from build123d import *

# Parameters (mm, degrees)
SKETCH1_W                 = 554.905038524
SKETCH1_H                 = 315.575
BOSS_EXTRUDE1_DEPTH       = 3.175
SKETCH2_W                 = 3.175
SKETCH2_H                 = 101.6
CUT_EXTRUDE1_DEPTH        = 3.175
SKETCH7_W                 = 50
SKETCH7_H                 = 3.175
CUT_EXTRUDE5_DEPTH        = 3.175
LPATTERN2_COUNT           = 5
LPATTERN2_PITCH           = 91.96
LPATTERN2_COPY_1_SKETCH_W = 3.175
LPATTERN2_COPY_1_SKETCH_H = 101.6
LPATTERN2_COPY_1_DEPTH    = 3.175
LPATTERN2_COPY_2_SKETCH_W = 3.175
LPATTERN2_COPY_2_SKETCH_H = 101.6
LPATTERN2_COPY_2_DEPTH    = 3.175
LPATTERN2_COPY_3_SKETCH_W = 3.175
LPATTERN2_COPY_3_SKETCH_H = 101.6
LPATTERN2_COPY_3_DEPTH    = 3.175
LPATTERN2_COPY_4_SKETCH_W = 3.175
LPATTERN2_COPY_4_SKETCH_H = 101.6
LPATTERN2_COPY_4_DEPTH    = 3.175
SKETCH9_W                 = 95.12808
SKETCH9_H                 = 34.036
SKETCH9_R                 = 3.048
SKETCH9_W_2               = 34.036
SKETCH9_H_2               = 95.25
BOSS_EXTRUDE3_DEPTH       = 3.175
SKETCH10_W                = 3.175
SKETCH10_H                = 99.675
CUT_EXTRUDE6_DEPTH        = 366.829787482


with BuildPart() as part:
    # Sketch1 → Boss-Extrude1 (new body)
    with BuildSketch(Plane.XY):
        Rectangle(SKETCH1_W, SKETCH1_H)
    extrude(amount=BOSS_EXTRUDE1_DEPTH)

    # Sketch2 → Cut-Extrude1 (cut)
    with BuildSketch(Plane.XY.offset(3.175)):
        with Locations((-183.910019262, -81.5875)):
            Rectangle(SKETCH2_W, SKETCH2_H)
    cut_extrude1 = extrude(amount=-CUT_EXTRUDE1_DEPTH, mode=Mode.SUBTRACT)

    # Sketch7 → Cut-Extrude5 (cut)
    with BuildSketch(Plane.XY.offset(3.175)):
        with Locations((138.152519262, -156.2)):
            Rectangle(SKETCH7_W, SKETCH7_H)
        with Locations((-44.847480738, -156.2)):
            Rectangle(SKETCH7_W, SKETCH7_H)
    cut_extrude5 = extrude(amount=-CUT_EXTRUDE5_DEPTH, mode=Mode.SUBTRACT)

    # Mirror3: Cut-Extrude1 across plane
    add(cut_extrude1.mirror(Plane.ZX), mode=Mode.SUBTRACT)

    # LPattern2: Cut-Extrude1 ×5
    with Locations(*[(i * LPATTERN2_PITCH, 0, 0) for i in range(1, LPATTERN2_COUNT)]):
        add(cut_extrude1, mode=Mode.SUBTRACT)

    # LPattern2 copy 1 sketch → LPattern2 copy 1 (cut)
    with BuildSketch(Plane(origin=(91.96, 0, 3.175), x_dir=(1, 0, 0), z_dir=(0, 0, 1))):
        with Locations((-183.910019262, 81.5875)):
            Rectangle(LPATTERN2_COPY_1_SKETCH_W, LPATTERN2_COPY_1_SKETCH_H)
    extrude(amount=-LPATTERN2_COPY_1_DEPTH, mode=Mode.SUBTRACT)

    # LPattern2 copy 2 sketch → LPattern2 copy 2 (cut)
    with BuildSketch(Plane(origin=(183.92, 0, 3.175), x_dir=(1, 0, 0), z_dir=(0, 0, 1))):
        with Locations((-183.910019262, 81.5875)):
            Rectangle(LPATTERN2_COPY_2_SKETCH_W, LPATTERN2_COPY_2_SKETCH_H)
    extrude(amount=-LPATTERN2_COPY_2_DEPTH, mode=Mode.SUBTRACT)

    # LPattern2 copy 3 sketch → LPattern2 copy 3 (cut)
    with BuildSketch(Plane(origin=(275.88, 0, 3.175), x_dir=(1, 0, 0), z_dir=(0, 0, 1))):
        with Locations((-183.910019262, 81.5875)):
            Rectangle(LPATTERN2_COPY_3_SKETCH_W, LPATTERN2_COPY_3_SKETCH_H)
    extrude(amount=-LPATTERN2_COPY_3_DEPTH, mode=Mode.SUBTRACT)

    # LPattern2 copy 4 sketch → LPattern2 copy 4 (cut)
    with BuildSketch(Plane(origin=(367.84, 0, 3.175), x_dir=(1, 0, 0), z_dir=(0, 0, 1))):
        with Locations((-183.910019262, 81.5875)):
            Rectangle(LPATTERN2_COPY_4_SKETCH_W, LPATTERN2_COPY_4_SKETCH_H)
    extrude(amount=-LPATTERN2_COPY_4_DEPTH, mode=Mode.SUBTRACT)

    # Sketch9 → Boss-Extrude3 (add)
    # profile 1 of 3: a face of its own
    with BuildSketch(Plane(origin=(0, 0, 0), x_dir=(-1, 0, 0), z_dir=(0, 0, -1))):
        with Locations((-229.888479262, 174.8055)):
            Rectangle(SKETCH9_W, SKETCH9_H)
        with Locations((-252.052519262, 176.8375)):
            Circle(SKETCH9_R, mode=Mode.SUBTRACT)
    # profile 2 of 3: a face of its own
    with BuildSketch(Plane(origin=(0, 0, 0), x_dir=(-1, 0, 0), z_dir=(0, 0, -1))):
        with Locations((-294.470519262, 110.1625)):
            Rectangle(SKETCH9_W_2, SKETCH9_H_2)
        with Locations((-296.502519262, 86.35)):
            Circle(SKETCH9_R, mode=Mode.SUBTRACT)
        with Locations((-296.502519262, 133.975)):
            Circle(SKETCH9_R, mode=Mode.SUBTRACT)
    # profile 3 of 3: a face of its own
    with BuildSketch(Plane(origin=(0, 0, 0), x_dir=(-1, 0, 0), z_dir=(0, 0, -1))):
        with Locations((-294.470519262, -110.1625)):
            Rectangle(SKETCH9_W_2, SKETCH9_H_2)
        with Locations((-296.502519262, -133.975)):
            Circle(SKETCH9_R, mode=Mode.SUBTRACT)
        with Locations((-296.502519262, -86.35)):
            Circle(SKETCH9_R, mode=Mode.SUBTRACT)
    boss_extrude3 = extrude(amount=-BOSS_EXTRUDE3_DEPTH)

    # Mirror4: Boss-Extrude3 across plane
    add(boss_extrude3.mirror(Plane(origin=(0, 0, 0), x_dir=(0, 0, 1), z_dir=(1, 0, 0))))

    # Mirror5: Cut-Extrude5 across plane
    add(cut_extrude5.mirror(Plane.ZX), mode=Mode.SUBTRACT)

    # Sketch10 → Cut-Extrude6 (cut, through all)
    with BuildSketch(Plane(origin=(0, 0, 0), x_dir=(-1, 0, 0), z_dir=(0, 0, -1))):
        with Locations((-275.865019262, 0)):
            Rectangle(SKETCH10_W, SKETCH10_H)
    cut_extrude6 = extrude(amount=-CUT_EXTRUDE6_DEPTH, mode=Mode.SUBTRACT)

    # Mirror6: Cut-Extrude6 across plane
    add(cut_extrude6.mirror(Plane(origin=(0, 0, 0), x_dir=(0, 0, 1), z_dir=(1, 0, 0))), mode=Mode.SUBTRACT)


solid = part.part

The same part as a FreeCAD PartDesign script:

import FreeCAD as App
import Part
import Sketcher
from FreeCAD import Vector
Q = App.Units.Quantity

doc = App.newDocument("Part")
body = doc.addObject("PartDesign::Body", "Body")

# Sketch on XY plane
sketch1 = body.newObject("Sketcher::SketchObject", "Sketch")
sketch1.AttachmentSupport = (doc.getObject("XY_Plane"), [""])
sketch1.MapMode = "FlatFace"
sketch1.addGeometry([
    Part.LineSegment(Vector(-277, 158, 0), Vector(-277, -158, 0)),
    Part.LineSegment(Vector(-277, -158, 0), Vector(277, -158, 0)),
    Part.LineSegment(Vector(277, -158, 0), Vector(277, 158, 0)),
    Part.LineSegment(Vector(277, 158, 0), Vector(-277, 158, 0)),
], False)
sketch1.addConstraint([
    Sketcher.Constraint("Coincident", 0, 2, 1, 1),
    Sketcher.Constraint("Coincident", 1, 2, 2, 1),
    Sketcher.Constraint("Coincident", 2, 2, 3, 1),
    Sketcher.Constraint("Coincident", 3, 2, 0, 1),
    Sketcher.Constraint("Vertical", 0),
    Sketcher.Constraint("Horizontal", 1),
    Sketcher.Constraint("Vertical", 2),
    Sketcher.Constraint("Horizontal", 3),
    Sketcher.Constraint("Symmetric", 0, 2, 2, 2, -1, 1),
    Sketcher.Constraint("DistanceY", 0, 2, 0, 1, Q("315.575 mm")),
    Sketcher.Constraint("DistanceX", 1, 1, 1, 2, Q("554.905039 mm")),
])
pad1 = body.newObject("PartDesign::Pad", "Pad")
pad1.Profile = sketch1
pad1.Length = Q("0.125 in")

# Sketch on XY plane
sketch2 = body.newObject("Sketcher::SketchObject", "Sketch001")
sketch2.AttachmentSupport = (doc.getObject("XY_Plane"), [""])
sketch2.MapMode = "FlatFace"
sketch2.AttachmentOffset = App.Placement(Vector(0, 0, 0.125 * 25.4), App.Rotation())
sketch2.addGeometry([
    Part.LineSegment(Vector(-185.5, -30.8, 0), Vector(-185.5, -132.4, 0)),
    Part.LineSegment(Vector(-185.5, -132.4, 0), Vector(-182.3, -132.4, 0)),
    Part.LineSegment(Vector(-182.3, -132.4, 0), Vector(-182.3, -30.8, 0)),
    Part.LineSegment(Vector(-182.3, -30.8, 0), Vector(-185.5, -30.8, 0)),
], False)
sketch2.addConstraint([
    Sketcher.Constraint("Coincident", 0, 2, 1, 1),
    Sketcher.Constraint("Coincident", 1, 2, 2, 1),
    Sketcher.Constraint("Coincident", 2, 2, 3, 1),
    Sketcher.Constraint("Coincident", 3, 2, 0, 1),
    Sketcher.Constraint("Vertical", 0),
    Sketcher.Constraint("Horizontal", 1),
    Sketcher.Constraint("Vertical", 2),
    Sketcher.Constraint("Horizontal", 3),
    Sketcher.Constraint("DistanceY", 0, 2, 0, 1, Q("4 in")),
    Sketcher.Constraint("DistanceX", 1, 1, 1, 2, Q("0.125 in")),
    Sketcher.Constraint("DistanceY", 0, 2, -1, 1, Q("132.3875 mm")),
    Sketcher.Constraint("DistanceX", 0, 2, -1, 1, Q("185.497519 mm")),
])
pocket1 = body.newObject("PartDesign::Pocket", "Pocket")
pocket1.Profile = sketch2
pocket1.Length = Q("0.125 in")

# Sketch on XY plane
sketch3 = body.newObject("Sketcher::SketchObject", "Sketch002")
sketch3.AttachmentSupport = (doc.getObject("XY_Plane"), [""])
sketch3.MapMode = "FlatFace"
sketch3.AttachmentOffset = App.Placement(Vector(0, 0, 0.125 * 25.4), App.Rotation())
sketch3.addGeometry([
    Part.LineSegment(Vector(113.2, -154.6, 0), Vector(113.2, -157.8, 0)),  # 0
    Part.LineSegment(Vector(113.2, -157.8, 0), Vector(163.2, -157.8, 0)),  # 1
    Part.LineSegment(Vector(163.2, -157.8, 0), Vector(163.2, -154.6, 0)),  # 2
    Part.LineSegment(Vector(163.2, -154.6, 0), Vector(113.2, -154.6, 0)),  # 3
    Part.LineSegment(Vector(-69.8, -154.6, 0), Vector(-69.8, -157.8, 0)),  # 4
    Part.LineSegment(Vector(-69.8, -157.8, 0), Vector(-19.8, -157.8, 0)),  # 5
    Part.LineSegment(Vector(-19.8, -157.8, 0), Vector(-19.8, -154.6, 0)),  # 6
    Part.LineSegment(Vector(-19.8, -154.6, 0), Vector(-69.8, -154.6, 0)),  # 7
], False)
sketch3.addConstraint([
    Sketcher.Constraint("Coincident", 0, 2, 1, 1),
    Sketcher.Constraint("Coincident", 1, 2, 2, 1),
    Sketcher.Constraint("Coincident", 2, 2, 3, 1),
    Sketcher.Constraint("Coincident", 3, 2, 0, 1),
    Sketcher.Constraint("Coincident", 4, 2, 5, 1),
    Sketcher.Constraint("Coincident", 5, 2, 6, 1),
    Sketcher.Constraint("Coincident", 6, 2, 7, 1),
    Sketcher.Constraint("Coincident", 7, 2, 4, 1),
    Sketcher.Constraint("Vertical", 0),
    Sketcher.Constraint("Horizontal", 1),
    Sketcher.Constraint("Vertical", 2),
    Sketcher.Constraint("Horizontal", 3),
    Sketcher.Constraint("Vertical", 4),
    Sketcher.Constraint("Horizontal", 5),
    Sketcher.Constraint("Vertical", 6),
    Sketcher.Constraint("Horizontal", 7),
    Sketcher.Constraint("Horizontal", 1, 2, 4, 2),
    Sketcher.Constraint("Horizontal", 3, 2, 6, 2),
    Sketcher.Constraint("Equal", 3, 5),
    Sketcher.Constraint("DistanceY", 0, 2, 0, 1, Q("0.125 in")),
    Sketcher.Constraint("DistanceX", 1, 1, 1, 2, Q("50 mm")),
    Sketcher.Constraint("DistanceY", 0, 2, -1, 1, Q("157.7875 mm")),
    Sketcher.Constraint("DistanceX", 4, 2, 0, 2, Q("183 mm")),
    Sketcher.Constraint("DistanceX", -1, 1, 0, 2, Q("113.152519 mm")),
])
pocket2 = body.newObject("PartDesign::Pocket", "Pocket001")
pocket2.Profile = sketch3
pocket2.Length = Q("0.125 in")
doc.recompute()

mirrored = body.newObject("PartDesign::Mirrored", "Mirrored")
mirrored.Originals = [pocket1]
mirrored.MirrorPlane = (doc.getObject("XZ_Plane"), [""])
body.Tip = mirrored
doc.recompute()

linearpattern = body.newObject("PartDesign::LinearPattern", "LinearPattern")
linearpattern.Originals = [pocket1]
linearpattern.Direction = (doc.getObject("X_Axis"), [""])
linearpattern.Mode = "offset"
linearpattern.Offset = 91.96
linearpattern.Occurrences = 5
body.Tip = linearpattern

# Sketch on XY plane
sketch4 = body.newObject("Sketcher::SketchObject", "Sketch003")
sketch4.AttachmentSupport = (doc.getObject("XY_Plane"), [""])
sketch4.MapMode = "FlatFace"
sketch4.AttachmentOffset = App.Placement(Vector(0, 0, 0.125 * 25.4), App.Rotation())
sketch4.addGeometry([
    Part.LineSegment(Vector(-93.5, 132.4, 0), Vector(-93.5, 30.8, 0)),
    Part.LineSegment(Vector(-93.5, 30.8, 0), Vector(-90.4, 30.8, 0)),
    Part.LineSegment(Vector(-90.4, 30.8, 0), Vector(-90.4, 132.4, 0)),
    Part.LineSegment(Vector(-90.4, 132.4, 0), Vector(-93.5, 132.4, 0)),
], False)
sketch4.addConstraint([
    Sketcher.Constraint("Coincident", 0, 2, 1, 1),
    Sketcher.Constraint("Coincident", 1, 2, 2, 1),
    Sketcher.Constraint("Coincident", 2, 2, 3, 1),
    Sketcher.Constraint("Coincident", 3, 2, 0, 1),
    Sketcher.Constraint("Vertical", 0),
    Sketcher.Constraint("Horizontal", 1),
    Sketcher.Constraint("Vertical", 2),
    Sketcher.Constraint("Horizontal", 3),
    Sketcher.Constraint("DistanceY", 0, 2, 0, 1, Q("4 in")),
    Sketcher.Constraint("DistanceX", 1, 1, 1, 2, Q("0.125 in")),
    Sketcher.Constraint("DistanceY", -1, 1, 0, 2, Q("30.7875 mm")),
    Sketcher.Constraint("DistanceX", 0, 2, -1, 1, Q("93.537519 mm")),
])
pocket3 = body.newObject("PartDesign::Pocket", "Pocket002")
pocket3.Profile = sketch4
pocket3.Length = Q("0.125 in")

# Sketch on XY plane
sketch5 = body.newObject("Sketcher::SketchObject", "Sketch004")
sketch5.AttachmentSupport = (doc.getObject("XY_Plane"), [""])
sketch5.MapMode = "FlatFace"
sketch5.AttachmentOffset = App.Placement(Vector(0, 0, 0.125 * 25.4), App.Rotation())
sketch5.addGeometry([
    Part.LineSegment(Vector(-1.6, 132.4, 0), Vector(-1.6, 30.8, 0)),
    Part.LineSegment(Vector(-1.6, 30.8, 0), Vector(1.6, 30.8, 0)),
    Part.LineSegment(Vector(1.6, 30.8, 0), Vector(1.6, 132.4, 0)),
    Part.LineSegment(Vector(1.6, 132.4, 0), Vector(-1.6, 132.4, 0)),
], False)
sketch5.addConstraint([
    Sketcher.Constraint("Coincident", 0, 2, 1, 1),
    Sketcher.Constraint("Coincident", 1, 2, 2, 1),
    Sketcher.Constraint("Coincident", 2, 2, 3, 1),
    Sketcher.Constraint("Coincident", 3, 2, 0, 1),
    Sketcher.Constraint("Vertical", 0),
    Sketcher.Constraint("Horizontal", 1),
    Sketcher.Constraint("Vertical", 2),
    Sketcher.Constraint("Horizontal", 3),
    Sketcher.Constraint("DistanceY", 0, 2, 0, 1, Q("4 in")),
    Sketcher.Constraint("DistanceX", 1, 1, 1, 2, Q("0.125 in")),
    Sketcher.Constraint("DistanceY", -1, 1, 0, 2, Q("30.7875 mm")),
    Sketcher.Constraint("DistanceX", 0, 2, -1, 1, Q("1.577519 mm")),
])
pocket4 = body.newObject("PartDesign::Pocket", "Pocket003")
pocket4.Profile = sketch5
pocket4.Length = Q("0.125 in")

# Sketch on XY plane
sketch6 = body.newObject("Sketcher::SketchObject", "Sketch005")
sketch6.AttachmentSupport = (doc.getObject("XY_Plane"), [""])
sketch6.MapMode = "FlatFace"
sketch6.AttachmentOffset = App.Placement(Vector(0, 0, 0.125 * 25.4), App.Rotation())
sketch6.addGeometry([
    Part.LineSegment(Vector(90.4, 132.4, 0), Vector(90.4, 30.8, 0)),
    Part.LineSegment(Vector(90.4, 30.8, 0), Vector(93.6, 30.8, 0)),
    Part.LineSegment(Vector(93.6, 30.8, 0), Vector(93.6, 132.4, 0)),
    Part.LineSegment(Vector(93.6, 132.4, 0), Vector(90.4, 132.4, 0)),
], False)
sketch6.addConstraint([
    Sketcher.Constraint("Coincident", 0, 2, 1, 1),
    Sketcher.Constraint("Coincident", 1, 2, 2, 1),
    Sketcher.Constraint("Coincident", 2, 2, 3, 1),
    Sketcher.Constraint("Coincident", 3, 2, 0, 1),
    Sketcher.Constraint("Vertical", 0),
    Sketcher.Constraint("Horizontal", 1),
    Sketcher.Constraint("Vertical", 2),
    Sketcher.Constraint("Horizontal", 3),
    Sketcher.Constraint("DistanceY", 0, 2, 0, 1, Q("4 in")),
    Sketcher.Constraint("DistanceX", 1, 1, 1, 2, Q("0.125 in")),
    Sketcher.Constraint("DistanceY", -1, 1, 0, 2, Q("30.7875 mm")),
    Sketcher.Constraint("DistanceX", -1, 1, 0, 2, Q("90.382481 mm")),
])
pocket5 = body.newObject("PartDesign::Pocket", "Pocket004")
pocket5.Profile = sketch6
pocket5.Length = Q("0.125 in")

# Sketch on XY plane
sketch7 = body.newObject("Sketcher::SketchObject", "Sketch006")
sketch7.AttachmentSupport = (doc.getObject("XY_Plane"), [""])
sketch7.MapMode = "FlatFace"
sketch7.AttachmentOffset = App.Placement(Vector(0, 0, 0.125 * 25.4), App.Rotation())
sketch7.addGeometry([
    Part.LineSegment(Vector(182.3, 132.4, 0), Vector(182.3, 30.8, 0)),
    Part.LineSegment(Vector(182.3, 30.8, 0), Vector(185.5, 30.8, 0)),
    Part.LineSegment(Vector(185.5, 30.8, 0), Vector(185.5, 132.4, 0)),
    Part.LineSegment(Vector(185.5, 132.4, 0), Vector(182.3, 132.4, 0)),
], False)
sketch7.addConstraint([
    Sketcher.Constraint("Coincident", 0, 2, 1, 1),
    Sketcher.Constraint("Coincident", 1, 2, 2, 1),
    Sketcher.Constraint("Coincident", 2, 2, 3, 1),
    Sketcher.Constraint("Coincident", 3, 2, 0, 1),
    Sketcher.Constraint("Vertical", 0),
    Sketcher.Constraint("Horizontal", 1),
    Sketcher.Constraint("Vertical", 2),
    Sketcher.Constraint("Horizontal", 3),
    Sketcher.Constraint("DistanceY", 0, 2, 0, 1, Q("4 in")),
    Sketcher.Constraint("DistanceX", 1, 1, 1, 2, Q("0.125 in")),
    Sketcher.Constraint("DistanceY", -1, 1, 0, 2, Q("30.7875 mm")),
    Sketcher.Constraint("DistanceX", -1, 1, 0, 2, Q("182.342481 mm")),
])
pocket6 = body.newObject("PartDesign::Pocket", "Pocket005")
pocket6.Profile = sketch7
pocket6.Length = Q("0.125 in")

# Sketch on XY plane
sketch8 = body.newObject("Sketcher::SketchObject", "Sketch007")
sketch8.AttachmentSupport = (doc.getObject("XY_Plane"), [""])
sketch8.MapMode = "FlatFace"
sketch8.addGeometry([
    Part.LineSegment(Vector(277.5, 191.8, 0), Vector(277.5, 157.8, 0)),  # 0
    Part.LineSegment(Vector(277.5, 157.8, 0), Vector(182.3, 157.8, 0)),  # 1
    Part.LineSegment(Vector(182.3, 157.8, 0), Vector(182.3, 191.8, 0)),  # 2
    Part.LineSegment(Vector(182.3, 191.8, 0), Vector(277.5, 191.8, 0)),  # 3
    Part.Circle(Vector(252.1, 176.8, 0), Vector(0, 0, 1), 3),  # 4
    Part.LineSegment(Vector(311.5, 157.8, 0), Vector(311.5, 62.5, 0)),  # 5
    Part.LineSegment(Vector(311.5, 62.5, 0), Vector(277.5, 62.5, 0)),  # 6
    Part.LineSegment(Vector(277.5, 62.5, 0), Vector(277.5, 157.8, 0)),  # 7
    Part.LineSegment(Vector(277.5, 157.8, 0), Vector(311.5, 157.8, 0)),  # 8
    Part.Circle(Vector(296.5, 86.3, 0), Vector(0, 0, 1), 3),  # 9
    Part.Circle(Vector(296.5, 134, 0), Vector(0, 0, 1), 3),  # 10
    Part.LineSegment(Vector(311.5, -62.5, 0), Vector(311.5, -157.8, 0)),  # 11
    Part.LineSegment(Vector(311.5, -157.8, 0), Vector(277.5, -157.8, 0)),  # 12
    Part.LineSegment(Vector(277.5, -157.8, 0), Vector(277.5, -62.5, 0)),  # 13
    Part.LineSegment(Vector(277.5, -62.5, 0), Vector(311.5, -62.5, 0)),  # 14
    Part.Circle(Vector(296.5, -134, 0), Vector(0, 0, 1), 3),  # 15
    Part.Circle(Vector(296.5, -86.3, 0), Vector(0, 0, 1), 3),  # 16
], False)
sketch8.addConstraint([
    Sketcher.Constraint("Coincident", 0, 2, 1, 1),
    Sketcher.Constraint("Coincident", 1, 2, 2, 1),
    Sketcher.Constraint("Coincident", 2, 2, 3, 1),
    Sketcher.Constraint("Coincident", 3, 2, 0, 1),
    Sketcher.Constraint("Coincident", 5, 2, 6, 1),
    Sketcher.Constraint("Coincident", 6, 2, 7, 1),
    Sketcher.Constraint("Coincident", 7, 2, 8, 1),
    Sketcher.Constraint("Coincident", 8, 2, 5, 1),
    Sketcher.Constraint("Coincident", 11, 2, 12, 1),
    Sketcher.Constraint("Coincident", 12, 2, 13, 1),
    Sketcher.Constraint("Coincident", 13, 2, 14, 1),
    Sketcher.Constraint("Coincident", 14, 2, 11, 1),
    Sketcher.Constraint("Vertical", 0),
    Sketcher.Constraint("Horizontal", 1),
    Sketcher.Constraint("Vertical", 2),
    Sketcher.Constraint("Horizontal", 3),
    Sketcher.Constraint("Vertical", 5),
    Sketcher.Constraint("Horizontal", 6),
    Sketcher.Constraint("Vertical", 7),
    Sketcher.Constraint("Horizontal", 8),
    Sketcher.Constraint("Vertical", 11),
    Sketcher.Constraint("Horizontal", 12),
    Sketcher.Constraint("Vertical", 13),
    Sketcher.Constraint("Horizontal", 14),
    Sketcher.Constraint("Coincident", 7, 2, 0, 2),
    Sketcher.Constraint("Equal", 4, 9),
    Sketcher.Constraint("Equal", 9, 10),
    Sketcher.Constraint("Equal", 10, 15),
    Sketcher.Constraint("Equal", 15, 16),
    Sketcher.Constraint("Symmetric", 10, 3, 15, 3, -1),
    Sketcher.Constraint("Symmetric", 9, 3, 16, 3, -1),
    Sketcher.Constraint("Symmetric", 8, 2, 11, 2, -1),
    Sketcher.Constraint("Symmetric", 6, 2, 13, 2, -1),
    Sketcher.Constraint("Vertical", 9, 3, 10, 3),
    Sketcher.Constraint("Equal", 14, 0),
    Sketcher.Constraint("Diameter", 4, Q("0.24 in")),
    Sketcher.Constraint("DistanceX", 4, 3, 0, 2, Q("1 in")),
    Sketcher.Constraint("DistanceX", 6, 2, 6, 1, Q("1.34 in")),
    Sketcher.Constraint("DistanceY", 5, 2, 5, 1, Q("3.75 in")),
    Sketcher.Constraint("DistanceY", 5, 2, 4, 3, Q("4.5 in")),
    Sketcher.Constraint("DistanceX", 4, 3, 9, 3, Q("1.75 in")),
    Sketcher.Constraint("DistanceX", 1, 2, 1, 1, Q("3.7452 in")),
    Sketcher.Constraint("DistanceY", 9, 3, 4, 3, Q("3.5625 in")),
    Sketcher.Constraint("DistanceY", 9, 3, 10, 3, Q("1.875 in")),
    Sketcher.Constraint("DistanceY", -1, 1, 4, 3, Q("176.8375 mm")),
    Sketcher.Constraint("DistanceX", -1, 1, 4, 3, Q("252.052519 mm")),
])
pad2 = body.newObject("PartDesign::Pad", "Pad001")
pad2.Profile = sketch8
pad2.Length = Q("0.125 in")
doc.recompute()

mirrored2 = body.newObject("PartDesign::Mirrored", "Mirrored001")
mirrored2.Originals = [pad2]
mirrored2.MirrorPlane = (doc.getObject("YZ_Plane"), [""])
body.Tip = mirrored2
doc.recompute()

mirrored3 = body.newObject("PartDesign::Mirrored", "Mirrored002")
mirrored3.Originals = [pocket2]
mirrored3.MirrorPlane = (doc.getObject("XZ_Plane"), [""])
body.Tip = mirrored3

# Sketch on XY plane
sketch9 = body.newObject("Sketcher::SketchObject", "Sketch008")
sketch9.AttachmentSupport = (doc.getObject("XY_Plane"), [""])
sketch9.MapMode = "FlatFace"
sketch9.addGeometry([
    Part.LineSegment(Vector(277.5, 49.8, 0), Vector(277.5, -49.8, 0)),
    Part.LineSegment(Vector(277.5, -49.8, 0), Vector(274.3, -49.8, 0)),
    Part.LineSegment(Vector(274.3, -49.8, 0), Vector(274.3, 49.8, 0)),
    Part.LineSegment(Vector(274.3, 49.8, 0), Vector(277.5, 49.8, 0)),
], False)
sketch9.addConstraint([
    Sketcher.Constraint("Coincident", 0, 2, 1, 1),
    Sketcher.Constraint("Coincident", 1, 2, 2, 1),
    Sketcher.Constraint("Coincident", 2, 2, 3, 1),
    Sketcher.Constraint("Coincident", 3, 2, 0, 1),
    Sketcher.Constraint("Vertical", 0),
    Sketcher.Constraint("Horizontal", 1),
    Sketcher.Constraint("Vertical", 2),
    Sketcher.Constraint("Horizontal", 3),
    Sketcher.Constraint("DistanceX", 1, 2, 1, 1, Q("0.125 in")),
    Sketcher.Constraint("DistanceY", 0, 2, 0, 1, Q("99.675 mm")),
    Sketcher.Constraint("DistanceY", 0, 2, -1, 1, Q("49.8375 mm")),
    Sketcher.Constraint("DistanceX", -1, 1, 0, 2, Q("277.452519 mm")),
])
pocket7 = body.newObject("PartDesign::Pocket", "Pocket006")
pocket7.Profile = sketch9
pocket7.Type = "ThroughAll"
pocket7.Reversed = True
doc.recompute()

mirrored4 = body.newObject("PartDesign::Mirrored", "Mirrored003")
mirrored4.Originals = [pocket7]
mirrored4.MirrorPlane = (doc.getObject("YZ_Plane"), [""])
body.Tip = mirrored4

doc.recompute()
